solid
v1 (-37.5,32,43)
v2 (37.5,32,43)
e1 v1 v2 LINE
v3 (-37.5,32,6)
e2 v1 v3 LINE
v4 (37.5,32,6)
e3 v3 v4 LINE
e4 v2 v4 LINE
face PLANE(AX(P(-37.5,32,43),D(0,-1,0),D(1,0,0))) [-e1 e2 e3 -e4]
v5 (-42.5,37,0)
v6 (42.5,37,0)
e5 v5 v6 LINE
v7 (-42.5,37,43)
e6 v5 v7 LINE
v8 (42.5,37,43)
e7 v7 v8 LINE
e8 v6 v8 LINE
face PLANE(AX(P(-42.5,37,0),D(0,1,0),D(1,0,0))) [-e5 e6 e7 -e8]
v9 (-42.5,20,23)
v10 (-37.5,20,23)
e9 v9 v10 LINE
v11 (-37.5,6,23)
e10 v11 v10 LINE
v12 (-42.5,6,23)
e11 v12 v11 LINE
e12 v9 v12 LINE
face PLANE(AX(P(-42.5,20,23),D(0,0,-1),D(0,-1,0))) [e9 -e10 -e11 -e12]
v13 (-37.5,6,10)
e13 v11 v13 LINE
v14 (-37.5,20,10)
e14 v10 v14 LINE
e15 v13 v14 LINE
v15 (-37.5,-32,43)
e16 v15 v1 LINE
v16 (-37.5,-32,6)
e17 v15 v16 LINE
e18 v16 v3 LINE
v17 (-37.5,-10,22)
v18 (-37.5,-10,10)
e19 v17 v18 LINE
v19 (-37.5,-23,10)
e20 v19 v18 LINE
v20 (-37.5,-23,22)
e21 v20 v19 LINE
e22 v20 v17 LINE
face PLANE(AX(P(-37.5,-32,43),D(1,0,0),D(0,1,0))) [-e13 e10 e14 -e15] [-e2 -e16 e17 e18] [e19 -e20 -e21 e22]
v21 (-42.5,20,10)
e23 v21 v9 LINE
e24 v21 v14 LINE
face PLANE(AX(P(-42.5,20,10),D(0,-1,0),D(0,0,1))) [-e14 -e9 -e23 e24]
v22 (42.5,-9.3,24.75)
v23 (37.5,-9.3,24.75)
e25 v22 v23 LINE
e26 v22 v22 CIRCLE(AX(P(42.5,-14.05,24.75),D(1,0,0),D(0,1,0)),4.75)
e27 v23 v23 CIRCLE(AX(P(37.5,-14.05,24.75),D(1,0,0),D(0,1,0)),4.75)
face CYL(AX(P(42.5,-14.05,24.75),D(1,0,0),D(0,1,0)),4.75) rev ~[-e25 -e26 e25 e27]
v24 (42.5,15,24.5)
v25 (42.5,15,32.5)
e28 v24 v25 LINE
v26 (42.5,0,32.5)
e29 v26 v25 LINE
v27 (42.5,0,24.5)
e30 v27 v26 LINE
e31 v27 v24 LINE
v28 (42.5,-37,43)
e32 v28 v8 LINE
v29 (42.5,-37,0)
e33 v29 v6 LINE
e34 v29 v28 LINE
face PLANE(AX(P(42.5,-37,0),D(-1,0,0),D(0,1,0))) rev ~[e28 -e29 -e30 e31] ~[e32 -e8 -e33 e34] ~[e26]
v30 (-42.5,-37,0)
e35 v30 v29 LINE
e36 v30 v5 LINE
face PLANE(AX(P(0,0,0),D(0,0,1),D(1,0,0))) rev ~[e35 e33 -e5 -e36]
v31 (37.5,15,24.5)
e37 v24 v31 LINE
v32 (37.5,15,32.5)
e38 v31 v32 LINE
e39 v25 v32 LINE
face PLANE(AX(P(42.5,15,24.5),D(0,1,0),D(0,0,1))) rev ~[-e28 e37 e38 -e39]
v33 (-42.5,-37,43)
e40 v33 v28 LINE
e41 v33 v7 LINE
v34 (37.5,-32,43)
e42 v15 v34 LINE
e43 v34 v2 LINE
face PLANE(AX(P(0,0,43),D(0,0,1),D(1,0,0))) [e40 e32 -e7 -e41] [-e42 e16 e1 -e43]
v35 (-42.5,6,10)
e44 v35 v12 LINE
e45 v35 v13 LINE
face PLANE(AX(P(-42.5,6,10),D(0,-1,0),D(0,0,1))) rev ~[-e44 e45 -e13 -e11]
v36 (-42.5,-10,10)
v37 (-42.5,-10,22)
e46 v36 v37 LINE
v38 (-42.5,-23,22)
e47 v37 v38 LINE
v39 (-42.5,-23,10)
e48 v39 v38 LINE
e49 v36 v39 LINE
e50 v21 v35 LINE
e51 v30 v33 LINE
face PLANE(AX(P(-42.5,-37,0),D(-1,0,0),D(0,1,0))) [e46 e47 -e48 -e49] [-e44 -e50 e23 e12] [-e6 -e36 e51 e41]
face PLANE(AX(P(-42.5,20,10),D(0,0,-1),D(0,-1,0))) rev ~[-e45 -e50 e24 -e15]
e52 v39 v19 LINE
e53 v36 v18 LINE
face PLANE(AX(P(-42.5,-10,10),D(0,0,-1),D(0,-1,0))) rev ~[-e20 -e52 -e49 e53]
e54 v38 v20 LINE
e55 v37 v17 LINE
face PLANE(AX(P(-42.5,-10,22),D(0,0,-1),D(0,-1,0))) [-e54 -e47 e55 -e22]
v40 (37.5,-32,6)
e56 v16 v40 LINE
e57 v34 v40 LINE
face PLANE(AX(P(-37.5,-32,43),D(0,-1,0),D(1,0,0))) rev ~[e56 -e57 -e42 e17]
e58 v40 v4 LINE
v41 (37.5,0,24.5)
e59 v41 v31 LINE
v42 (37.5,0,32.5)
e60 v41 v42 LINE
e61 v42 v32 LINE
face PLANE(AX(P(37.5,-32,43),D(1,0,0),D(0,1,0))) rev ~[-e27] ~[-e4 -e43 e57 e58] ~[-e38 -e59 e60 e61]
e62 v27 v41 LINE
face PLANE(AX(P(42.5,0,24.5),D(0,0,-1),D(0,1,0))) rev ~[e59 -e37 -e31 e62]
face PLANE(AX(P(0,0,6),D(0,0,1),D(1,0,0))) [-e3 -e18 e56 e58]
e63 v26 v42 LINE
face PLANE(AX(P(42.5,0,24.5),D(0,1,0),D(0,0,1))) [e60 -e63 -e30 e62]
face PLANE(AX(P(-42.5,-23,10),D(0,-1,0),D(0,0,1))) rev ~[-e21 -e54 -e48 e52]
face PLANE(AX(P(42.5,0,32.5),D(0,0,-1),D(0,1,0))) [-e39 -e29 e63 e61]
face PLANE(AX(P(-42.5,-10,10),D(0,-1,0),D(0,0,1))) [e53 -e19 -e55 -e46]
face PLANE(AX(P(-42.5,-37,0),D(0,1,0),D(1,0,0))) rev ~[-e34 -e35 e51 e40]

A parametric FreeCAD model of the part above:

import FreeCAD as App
import Part
import Sketcher
Q = App.Units.Quantity


def add_polygon(sketch, points):
    """Adds a closed chain of lines whose ends are joined by coincident constraints."""
    first, n = sketch.GeometryCount, len(points)
    for a, b in zip(points, points[1:] + points[:1]):
        sketch.addGeometry(Part.LineSegment(App.Vector(*a, 0), App.Vector(*b, 0)), False)
    for i in range(n):
        sketch.addConstraint(Sketcher.Constraint("Coincident", first + i, 2, first + (i + 1) % n, 1))

doc = App.newDocument("Part")
body = doc.addObject("PartDesign::Body", "Body")

sketch1 = doc.addObject("Sketcher::SketchObject", "Sketch")
body.addObject(sketch1)
sketch1.AttachmentSupport = (doc.XY_Plane, [""])
sketch1.MapMode = "FlatFace"
add_polygon(sketch1, [(-42, 37), (-42, -37), (42, -37), (42, 37)])
sketch1.addConstraint(Sketcher.Constraint("Vertical", 0))
sketch1.addConstraint(Sketcher.Constraint("Horizontal", 1))
sketch1.addConstraint(Sketcher.Constraint("Vertical", 2))
sketch1.addConstraint(Sketcher.Constraint("Horizontal", 3))
sketch1.addConstraint(Sketcher.Constraint("Symmetric", 0, 2, 2, 2, -1, 1))
sketch1.addConstraint(Sketcher.Constraint("DistanceX", 1, 1, 1, 2, Q("85 mm")))
sketch1.addConstraint(Sketcher.Constraint("DistanceY", 0, 2, 0, 1, Q("74 mm")))
pad1 = doc.addObject("PartDesign::Pad", "Pad")
body.addObject(pad1)
pad1.Profile = sketch1
pad1.Length = 43

sketch2 = doc.addObject("Sketcher::SketchObject", "Sketch001")
body.addObject(sketch2)
sketch2.AttachmentSupport = (doc.XY_Plane, [""])
sketch2.MapMode = "FlatFace"
sketch2.AttachmentOffset = App.Placement(App.Vector(0, 0, 43), App.Rotation())
add_polygon(sketch2, [(-38, 32), (-38, -32), (38, -32), (38, 32)])
sketch2.addConstraint(Sketcher.Constraint("Vertical", 0))
sketch2.addConstraint(Sketcher.Constraint("Horizontal", 1))
sketch2.addConstraint(Sketcher.Constraint("Vertical", 2))
sketch2.addConstraint(Sketcher.Constraint("Horizontal", 3))
sketch2.addConstraint(Sketcher.Constraint("Symmetric", 0, 2, 2, 2, -1, 1))
sketch2.addConstraint(Sketcher.Constraint("DistanceX", 1, 1, 1, 2, Q("75 mm")))
sketch2.addConstraint(Sketcher.Constraint("DistanceY", 0, 2, 0, 1, Q("64 mm")))
pocket1 = doc.addObject("PartDesign::Pocket", "Pocket")
body.addObject(pocket1)
pocket1.Profile = sketch2
pocket1.Length = 37

sketch3 = doc.addObject("Sketcher::SketchObject", "Sketch002")
body.addObject(sketch3)
sketch3.AttachmentSupport = (doc.YZ_Plane, [""])
sketch3.MapMode = "FlatFace"
sketch3.AttachmentOffset = App.Placement(App.Vector(0, 0, 42.5), App.Rotation())
add_polygon(sketch3, [(0, 32), (0, 24), (15, 24), (15, 32)])
sketch3.addConstraint(Sketcher.Constraint("Vertical", 0))
sketch3.addConstraint(Sketcher.Constraint("Horizontal", 1))
sketch3.addConstraint(Sketcher.Constraint("Vertical", 2))
sketch3.addConstraint(Sketcher.Constraint("Horizontal", 3))
sketch3.addConstraint(Sketcher.Constraint("PointOnObject", 0, 2, -2))
sketch3.addConstraint(Sketcher.Constraint("DistanceX", 1, 1, 1, 2, Q("15 mm")))
sketch3.addConstraint(Sketcher.Constraint("DistanceY", 0, 2, 0, 1, Q("8 mm")))
sketch3.addConstraint(Sketcher.Constraint("DistanceY", -1, 1, 0, 2, Q("24.5 mm")))
pocket2 = doc.addObject("PartDesign::Pocket", "Pocket001")
body.addObject(pocket2)
pocket2.Profile = sketch3
pocket2.Length = 6

sketch4 = doc.addObject("Sketcher::SketchObject", "Sketch003")
body.addObject(sketch4)
sketch4.AttachmentSupport = (doc.YZ_Plane, [""])
sketch4.MapMode = "FlatFace"
sketch4.AttachmentOffset = App.Placement(App.Vector(0, 0, 42.5), App.Rotation())
sketch4.addGeometry(Part.Circle(App.Vector(-14.1, 24.8, 0), App.Vector(0, 0, 1), 4.8), False)
sketch4.addConstraint(Sketcher.Constraint("Diameter", 0, Q("9.5 mm")))
sketch4.addConstraint(Sketcher.Constraint("DistanceX", 0, 3, -1, 1, Q("14.05 mm")))
sketch4.addConstraint(Sketcher.Constraint("DistanceY", -1, 1, 0, 3, Q("24.75 mm")))
pocket3 = doc.addObject("PartDesign::Pocket", "Pocket002")
body.addObject(pocket3)
pocket3.Profile = sketch4
pocket3.Length = 6

sketch5 = doc.addObject("Sketcher::SketchObject", "Sketch004")
body.addObject(sketch5)
sketch5.AttachmentSupport = (doc.YZ_Plane, [""])
sketch5.MapMode = "FlatFace"
sketch5.AttachmentOffset = App.Placement(App.Vector(0, 0, -42.5), App.Rotation())
add_polygon(sketch5, [(20, 23), (20, 10), (6, 10), (6, 23)])
sketch5.addConstraint(Sketcher.Constraint("Vertical", 0))
sketch5.addConstraint(Sketcher.Constraint("Horizontal", 1))
sketch5.addConstraint(Sketcher.Constraint("Vertical", 2))
sketch5.addConstraint(Sketcher.Constraint("Horizontal", 3))
sketch5.addConstraint(Sketcher.Constraint("DistanceX", 1, 2, 1, 1, Q("14 mm")))
sketch5.addConstraint(Sketcher.Constraint("DistanceY", 0, 2, 0, 1, Q("13 mm")))
sketch5.addConstraint(Sketcher.Constraint("DistanceX", -1, 1, 0, 2, Q("20 mm")))
sketch5.addConstraint(Sketcher.Constraint("DistanceY", -1, 1, 0, 2, Q("10 mm")))
pocket4 = doc.addObject("PartDesign::Pocket", "Pocket003")
body.addObject(pocket4)
pocket4.Profile = sketch5
pocket4.Length = 6
pocket4.Reversed = True

sketch6 = doc.addObject("Sketcher::SketchObject", "Sketch005")
body.addObject(sketch6)
sketch6.AttachmentSupport = (doc.YZ_Plane, [""])
sketch6.MapMode = "FlatFace"
sketch6.AttachmentOffset = App.Placement(App.Vector(0, 0, -42.5), App.Rotation())
add_polygon(sketch6, [(-10, 22), (-10, 10), (-23, 10), (-23, 22)])
sketch6.addConstraint(Sketcher.Constraint("Vertical", 0))
sketch6.addConstraint(Sketcher.Constraint("Horizontal", 1))
sketch6.addConstraint(Sketcher.Constraint("Vertical", 2))
sketch6.addConstraint(Sketcher.Constraint("Horizontal", 3))
sketch6.addConstraint(Sketcher.Constraint("DistanceX", 1, 2, 1, 1, Q("13 mm")))
sketch6.addConstraint(Sketcher.Constraint("DistanceY", 0, 2, 0, 1, Q("12 mm")))
sketch6.addConstraint(Sketcher.Constraint("DistanceX", 0, 2, -1, 1, Q("10 mm")))
sketch6.addConstraint(Sketcher.Constraint("DistanceY", -1, 1, 0, 2, Q("10 mm")))
pocket5 = doc.addObject("PartDesign::Pocket", "Pocket004")
body.addObject(pocket5)
pocket5.Profile = sketch6
pocket5.Length = 6
pocket5.Reversed = True

doc.recompute()
